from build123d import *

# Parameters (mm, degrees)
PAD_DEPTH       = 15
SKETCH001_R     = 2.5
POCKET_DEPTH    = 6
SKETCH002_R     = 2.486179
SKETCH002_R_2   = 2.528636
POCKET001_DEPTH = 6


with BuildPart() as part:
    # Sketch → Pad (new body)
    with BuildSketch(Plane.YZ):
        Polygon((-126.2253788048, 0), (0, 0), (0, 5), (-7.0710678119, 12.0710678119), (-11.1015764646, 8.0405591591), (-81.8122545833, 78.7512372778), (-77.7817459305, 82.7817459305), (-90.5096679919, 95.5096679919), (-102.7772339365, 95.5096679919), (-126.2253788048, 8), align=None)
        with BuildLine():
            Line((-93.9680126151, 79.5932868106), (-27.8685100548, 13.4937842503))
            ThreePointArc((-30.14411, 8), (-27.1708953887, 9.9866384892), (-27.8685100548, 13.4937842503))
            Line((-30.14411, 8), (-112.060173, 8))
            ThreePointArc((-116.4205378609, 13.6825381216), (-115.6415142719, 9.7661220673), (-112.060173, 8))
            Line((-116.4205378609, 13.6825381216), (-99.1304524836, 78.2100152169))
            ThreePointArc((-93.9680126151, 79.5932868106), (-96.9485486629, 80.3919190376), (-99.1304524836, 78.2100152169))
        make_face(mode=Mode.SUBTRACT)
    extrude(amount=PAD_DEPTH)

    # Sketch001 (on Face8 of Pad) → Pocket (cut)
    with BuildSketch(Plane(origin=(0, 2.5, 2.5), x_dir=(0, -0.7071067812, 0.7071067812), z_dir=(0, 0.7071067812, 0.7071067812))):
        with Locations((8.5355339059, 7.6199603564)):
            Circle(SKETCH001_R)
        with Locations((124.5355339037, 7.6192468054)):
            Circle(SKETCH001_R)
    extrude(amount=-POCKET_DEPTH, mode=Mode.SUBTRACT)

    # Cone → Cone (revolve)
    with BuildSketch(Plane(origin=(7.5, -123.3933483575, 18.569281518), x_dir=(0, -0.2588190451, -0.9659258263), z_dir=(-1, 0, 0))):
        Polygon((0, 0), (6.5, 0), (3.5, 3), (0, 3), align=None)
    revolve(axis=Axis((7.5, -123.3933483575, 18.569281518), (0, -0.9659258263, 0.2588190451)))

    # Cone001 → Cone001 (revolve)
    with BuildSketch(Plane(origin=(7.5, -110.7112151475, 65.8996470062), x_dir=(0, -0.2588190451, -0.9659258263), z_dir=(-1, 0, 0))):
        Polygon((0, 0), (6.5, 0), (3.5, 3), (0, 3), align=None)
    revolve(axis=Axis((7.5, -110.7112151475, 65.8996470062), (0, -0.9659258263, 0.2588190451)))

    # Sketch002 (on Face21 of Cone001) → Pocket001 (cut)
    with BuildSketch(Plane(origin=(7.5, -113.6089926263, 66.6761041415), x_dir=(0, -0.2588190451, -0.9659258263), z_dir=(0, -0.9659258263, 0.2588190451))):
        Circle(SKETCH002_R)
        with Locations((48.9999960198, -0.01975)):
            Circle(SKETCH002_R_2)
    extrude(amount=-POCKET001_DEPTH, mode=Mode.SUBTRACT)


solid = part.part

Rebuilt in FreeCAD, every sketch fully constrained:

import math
import FreeCAD as App
import Part
import Sketcher
Q = App.Units.Quantity

doc = App.newDocument("Part")
body = doc.addObject("PartDesign::Body", "Body")

sketch1 = body.newObject("Sketcher::SketchObject", "Sketch")
sketch1.AttachmentSupport = (doc.getObject("YZ_Plane"), [""])
sketch1.MapMode = "FlatFace"
sketch1.addGeometry([
    Part.LineSegment(App.Vector(-126.2, 0, 0), App.Vector(0, 0, 0)),
    Part.LineSegment(App.Vector(0, 0, 0), App.Vector(0, 5, 0)),
    Part.LineSegment(App.Vector(0, 5, 0), App.Vector(-7.1, 12.1, 0)),
    Part.LineSegment(App.Vector(-7.1, 12.1, 0), App.Vector(-11.1, 8, 0)),
    Part.LineSegment(App.Vector(-11.1, 8, 0), App.Vector(-81.8, 78.8, 0)),
    Part.LineSegment(App.Vector(-81.8, 78.8, 0), App.Vector(-77.8, 82.8, 0)),
    Part.LineSegment(App.Vector(-77.8, 82.8, 0), App.Vector(-90.5, 95.5, 0)),
    Part.LineSegment(App.Vector(-90.5, 95.5, 0), App.Vector(-102.8, 95.5, 0)),
    Part.LineSegment(App.Vector(-102.8, 95.5, 0), App.Vector(-126.2, 8, 0)),
    Part.LineSegment(App.Vector(-126.2, 8, 0), App.Vector(-126.2, 0, 0)),
    Part.ArcOfCircle(Part.Circle(App.Vector(-96.1, 77.4, 0), App.Vector(0, 0, 1), 3.1), math.radians(45), math.radians(165)),
    Part.LineSegment(App.Vector(-94, 79.6, 0), App.Vector(-27.9, 13.5, 0)),
    Part.ArcOfCircle(Part.Circle(App.Vector(-30.1, 11.2, 0), App.Vector(0, 0, 1), 3.2), math.radians(-90), math.radians(45)),
    Part.LineSegment(App.Vector(-30.1, 8, 0), App.Vector(-112.1, 8, 0)),
    Part.ArcOfCircle(Part.Circle(App.Vector(-112.1, 12.5, 0), App.Vector(0, 0, 1), 4.5), math.radians(165), math.radians(270)),
    Part.LineSegment(App.Vector(-116.4, 13.7, 0), App.Vector(-99.1, 78.2, 0)),
], False)
sketch1.addConstraint([
    Sketcher.Constraint("Coincident", 0, 2, 1, 1),
    Sketcher.Constraint("Coincident", 1, 2, 2, 1),
    Sketcher.Constraint("Coincident", 2, 2, 3, 1),
    Sketcher.Constraint("Coincident", 3, 2, 4, 1),
    Sketcher.Constraint("Coincident", 4, 2, 5, 1),
    Sketcher.Constraint("Coincident", 5, 2, 6, 1),
    Sketcher.Constraint("Coincident", 6, 2, 7, 1),
    Sketcher.Constraint("Coincident", 7, 2, 8, 1),
    Sketcher.Constraint("Coincident", 8, 2, 9, 1),
    Sketcher.Constraint("Coincident", 9, 2, 0, 1),
    Sketcher.Constraint("Tangent", 10, 1, 11, 1),
    Sketcher.Constraint("Tangent", 11, 2, 12, 2),
    Sketcher.Constraint("Tangent", 12, 1, 13, 1),
    Sketcher.Constraint("Tangent", 13, 2, 14, 2),
    Sketcher.Constraint("Tangent", 14, 1, 15, 1),
    Sketcher.Constraint("Tangent", 15, 2, 10, 2),
    Sketcher.Constraint("Horizontal", 0),
    Sketcher.Constraint("Vertical", 1),
    Sketcher.Constraint("Horizontal", 7),
    Sketcher.Constraint("Vertical", 9),
    Sketcher.Constraint("Horizontal", 13),
    Sketcher.Constraint("Coincident", 0, 2, -1, 1),
    Sketcher.Constraint("Perpendicular", 2, 3),
    Sketcher.Constraint("Perpendicular", 3, 4),
    Sketcher.Constraint("Perpendicular", 4, 5),
    Sketcher.Constraint("Perpendicular", 5, 6),
    Sketcher.Constraint("Parallel", 6, 11),
    Sketcher.Constraint("Parallel", 8, 15),
    Sketcher.Constraint("Horizontal", 8, 2, 12, 1),
    Sketcher.Constraint("Equal", 3, 5),
    Sketcher.Constraint("DistanceY", 1, 1, 1, 2, 5.0),
    Sketcher.Constraint("DistanceY", 9, 2, 9, 1, 8.0),
    Sketcher.Constraint("Angle", 2, Q("135 deg")),
    Sketcher.Constraint("Angle", 8, Q("-105 deg")),
    Sketcher.Constraint("Distance", 2, 10.0),
    Sketcher.Constraint("Distance", 4, 100.0),
    Sketcher.Constraint("Distance", 6, 18.0),
    Sketcher.Constraint("Distance", 3, 5.7),
    Sketcher.Constraint("Radius", 14, 4.514182),
    Sketcher.Constraint("Radius", 10, 3.085678),
    Sketcher.Constraint("Radius", 12, 3.218184),
    Sketcher.Constraint("DistanceX", 0, 1, 0, 2, 126.225379),
    Sketcher.Constraint("DistanceY", 12, 3, 10, 3, 66.193199),
    Sketcher.Constraint("DistanceX", 12, 3, -1, 1, 30.14411),
])
pad1 = body.newObject("PartDesign::Pad", "Pad")
pad1.Profile = sketch1
pad1.Length = 15

sketch2 = body.newObject("Sketcher::SketchObject", "Sketch001")
sketch2.Placement = App.Placement(App.Vector(0, 2.5, 2.5), App.Rotation(App.Vector(0, -0.707106781, 0.707106781), App.Vector(0.999999999, 0, 0), App.Vector(0, 0.707106781, 0.707106781), "ZXY"))
sketch2.addGeometry([
    Part.Circle(App.Vector(8.5, 7.6, 0), App.Vector(0, 0, 1), 2.5),
    Part.Circle(App.Vector(124.5, 7.6, 0), App.Vector(0, 0, 1), 2.5),
], False)
sketch2.addConstraint([
    Sketcher.Constraint("Equal", 0, 1),
    Sketcher.Constraint("Diameter", 0, 5.0),
    Sketcher.Constraint("DistanceX", 0, 3, 1, 3, 116.0),
    Sketcher.Constraint("DistanceY", -1, 1, 0, 3, 7.61996),
    Sketcher.Constraint("DistanceX", -1, 1, 0, 3, 8.535534),
    Sketcher.Constraint("DistanceY", -1, 1, 1, 3, 7.619247),
])
pocket1 = body.newObject("PartDesign::Pocket", "Pocket")
pocket1.Profile = sketch2
pocket1.Length = 6

sketch3 = body.newObject("Sketcher::SketchObject", "Sketch002")
sketch3.AttachmentSupport = (doc.getObject("YZ_Plane"), [""])
sketch3.MapMode = "FlatFace"
sketch3.AttachmentOffset = App.Placement(App.Vector(0, 0, 7.5), App.Rotation())
sketch3.addGeometry([
    Part.LineSegment(App.Vector(-123.4, 18.6, 0), App.Vector(-125.1, 12.3, 0)),
    Part.LineSegment(App.Vector(-125.1, 12.3, 0), App.Vector(-127.2, 16, 0)),
    Part.LineSegment(App.Vector(-127.2, 16, 0), App.Vector(-126.3, 19.3, 0)),
    Part.LineSegment(App.Vector(-126.3, 19.3, 0), App.Vector(-123.4, 18.6, 0)),
], False)
sketch3.addGeometry(Part.LineSegment(App.Vector(-123.4, 18.6, 0), App.Vector(-126.3, 19.3, 0)), True)
sketch3.addConstraint([
    Sketcher.Constraint("Coincident", 0, 2, 1, 1),
    Sketcher.Constraint("Coincident", 1, 2, 2, 1),
    Sketcher.Constraint("Coincident", 2, 2, 3, 1),
    Sketcher.Constraint("Coincident", 3, 2, 0, 1),
    Sketcher.Constraint("Coincident", 4, 1, 3, 2),
    Sketcher.Constraint("Coincident", 4, 2, 2, 2),
    Sketcher.Constraint("Parallel", 0, 2),
    Sketcher.Constraint("Perpendicular", 2, 3),
    Sketcher.Constraint("Angle", 0, Q("-105 deg")),
    Sketcher.Constraint("Angle", 1, Q("120 deg")),
    Sketcher.Constraint("Distance", 3, 3.0),
    Sketcher.Constraint("Distance", 0, 6.5),
    Sketcher.Constraint("DistanceY", -1, 1, 1, 2, 15.964998),
    Sketcher.Constraint("DistanceX", 3, 2, -1, 1, 123.393348),
])
revolution = body.newObject("PartDesign::Revolution", "Revolution")
revolution.Profile = sketch3
revolution.ReferenceAxis = (sketch3, ["Axis0"])
revolution.Angle = 360

sketch4 = body.newObject("Sketcher::SketchObject", "Sketch003")
sketch4.AttachmentSupport = (doc.getObject("YZ_Plane"), [""])
sketch4.MapMode = "FlatFace"
sketch4.AttachmentOffset = App.Placement(App.Vector(0, 0, 7.5), App.Rotation())
sketch4.addGeometry([
    Part.LineSegment(App.Vector(-110.7, 65.9, 0), App.Vector(-112.4, 59.6, 0)),
    Part.LineSegment(App.Vector(-112.4, 59.6, 0), App.Vector(-114.5, 63.3, 0)),
    Part.LineSegment(App.Vector(-114.5, 63.3, 0), App.Vector(-113.6, 66.7, 0)),
    Part.LineSegment(App.Vector(-113.6, 66.7, 0), App.Vector(-110.7, 65.9, 0)),
], False)
sketch4.addGeometry(Part.LineSegment(App.Vector(-110.7, 65.9, 0), App.Vector(-113.6, 66.7, 0)), True)
sketch4.addConstraint([
    Sketcher.Constraint("Coincident", 0, 2, 1, 1),
    Sketcher.Constraint("Coincident", 1, 2, 2, 1),
    Sketcher.Constraint("Coincident", 2, 2, 3, 1),
    Sketcher.Constraint("Coincident", 3, 2, 0, 1),
    Sketcher.Constraint("Coincident", 4, 1, 3, 2),
    Sketcher.Constraint("Coincident", 4, 2, 2, 2),
    Sketcher.Constraint("Parallel", 0, 2),
    Sketcher.Constraint("Perpendicular", 2, 3),
    Sketcher.Constraint("Angle", 0, Q("-105 deg")),
    Sketcher.Constraint("Angle", 1, Q("120 deg")),
    Sketcher.Constraint("Distance", 3, 3.0),
    Sketcher.Constraint("Distance", 0, 6.5),
    Sketcher.Constraint("DistanceX", 0, 2, -1, 1, 112.393539),
    Sketcher.Constraint("DistanceY", -1, 1, 0, 2, 59.621129),
])
revolution2 = body.newObject("PartDesign::Revolution", "Revolution001")
revolution2.Profile = sketch4
revolution2.ReferenceAxis = (sketch4, ["Axis0"])
revolution2.Angle = 360

sketch5 = body.newObject("Sketcher::SketchObject", "Sketch004")
sketch5.Placement = App.Placement(App.Vector(7.5, -113.608993, 66.676104), App.Rotation(App.Vector(0, -0.258819045, -0.965925826), App.Vector(0.999999999, 0, 0), App.Vector(0, -0.965925826, 0.258819045), "ZXY"))
sketch5.addGeometry([
    Part.Circle(App.Vector(0, 0, 0), App.Vector(0, 0, 1), 2.5),
    Part.Circle(App.Vector(49, 0, 0), App.Vector(0, 0, 1), 2.5),
], False)
sketch5.addConstraint([
    Sketcher.Constraint("Coincident", 0, 3, -1, 1),
    Sketcher.Constraint("Diameter", 0, 4.972358),
    Sketcher.Constraint("Diameter", 1, 5.057272),
    Sketcher.Constraint("DistanceY", 1, 3, -1, 1, 0.01975),
    Sketcher.Constraint("DistanceX", -1, 1, 1, 3, 48.999996),
])
pocket2 = body.newObject("PartDesign::Pocket", "Pocket001")
pocket2.Profile = sketch5
pocket2.Length = 6

doc.recompute()
